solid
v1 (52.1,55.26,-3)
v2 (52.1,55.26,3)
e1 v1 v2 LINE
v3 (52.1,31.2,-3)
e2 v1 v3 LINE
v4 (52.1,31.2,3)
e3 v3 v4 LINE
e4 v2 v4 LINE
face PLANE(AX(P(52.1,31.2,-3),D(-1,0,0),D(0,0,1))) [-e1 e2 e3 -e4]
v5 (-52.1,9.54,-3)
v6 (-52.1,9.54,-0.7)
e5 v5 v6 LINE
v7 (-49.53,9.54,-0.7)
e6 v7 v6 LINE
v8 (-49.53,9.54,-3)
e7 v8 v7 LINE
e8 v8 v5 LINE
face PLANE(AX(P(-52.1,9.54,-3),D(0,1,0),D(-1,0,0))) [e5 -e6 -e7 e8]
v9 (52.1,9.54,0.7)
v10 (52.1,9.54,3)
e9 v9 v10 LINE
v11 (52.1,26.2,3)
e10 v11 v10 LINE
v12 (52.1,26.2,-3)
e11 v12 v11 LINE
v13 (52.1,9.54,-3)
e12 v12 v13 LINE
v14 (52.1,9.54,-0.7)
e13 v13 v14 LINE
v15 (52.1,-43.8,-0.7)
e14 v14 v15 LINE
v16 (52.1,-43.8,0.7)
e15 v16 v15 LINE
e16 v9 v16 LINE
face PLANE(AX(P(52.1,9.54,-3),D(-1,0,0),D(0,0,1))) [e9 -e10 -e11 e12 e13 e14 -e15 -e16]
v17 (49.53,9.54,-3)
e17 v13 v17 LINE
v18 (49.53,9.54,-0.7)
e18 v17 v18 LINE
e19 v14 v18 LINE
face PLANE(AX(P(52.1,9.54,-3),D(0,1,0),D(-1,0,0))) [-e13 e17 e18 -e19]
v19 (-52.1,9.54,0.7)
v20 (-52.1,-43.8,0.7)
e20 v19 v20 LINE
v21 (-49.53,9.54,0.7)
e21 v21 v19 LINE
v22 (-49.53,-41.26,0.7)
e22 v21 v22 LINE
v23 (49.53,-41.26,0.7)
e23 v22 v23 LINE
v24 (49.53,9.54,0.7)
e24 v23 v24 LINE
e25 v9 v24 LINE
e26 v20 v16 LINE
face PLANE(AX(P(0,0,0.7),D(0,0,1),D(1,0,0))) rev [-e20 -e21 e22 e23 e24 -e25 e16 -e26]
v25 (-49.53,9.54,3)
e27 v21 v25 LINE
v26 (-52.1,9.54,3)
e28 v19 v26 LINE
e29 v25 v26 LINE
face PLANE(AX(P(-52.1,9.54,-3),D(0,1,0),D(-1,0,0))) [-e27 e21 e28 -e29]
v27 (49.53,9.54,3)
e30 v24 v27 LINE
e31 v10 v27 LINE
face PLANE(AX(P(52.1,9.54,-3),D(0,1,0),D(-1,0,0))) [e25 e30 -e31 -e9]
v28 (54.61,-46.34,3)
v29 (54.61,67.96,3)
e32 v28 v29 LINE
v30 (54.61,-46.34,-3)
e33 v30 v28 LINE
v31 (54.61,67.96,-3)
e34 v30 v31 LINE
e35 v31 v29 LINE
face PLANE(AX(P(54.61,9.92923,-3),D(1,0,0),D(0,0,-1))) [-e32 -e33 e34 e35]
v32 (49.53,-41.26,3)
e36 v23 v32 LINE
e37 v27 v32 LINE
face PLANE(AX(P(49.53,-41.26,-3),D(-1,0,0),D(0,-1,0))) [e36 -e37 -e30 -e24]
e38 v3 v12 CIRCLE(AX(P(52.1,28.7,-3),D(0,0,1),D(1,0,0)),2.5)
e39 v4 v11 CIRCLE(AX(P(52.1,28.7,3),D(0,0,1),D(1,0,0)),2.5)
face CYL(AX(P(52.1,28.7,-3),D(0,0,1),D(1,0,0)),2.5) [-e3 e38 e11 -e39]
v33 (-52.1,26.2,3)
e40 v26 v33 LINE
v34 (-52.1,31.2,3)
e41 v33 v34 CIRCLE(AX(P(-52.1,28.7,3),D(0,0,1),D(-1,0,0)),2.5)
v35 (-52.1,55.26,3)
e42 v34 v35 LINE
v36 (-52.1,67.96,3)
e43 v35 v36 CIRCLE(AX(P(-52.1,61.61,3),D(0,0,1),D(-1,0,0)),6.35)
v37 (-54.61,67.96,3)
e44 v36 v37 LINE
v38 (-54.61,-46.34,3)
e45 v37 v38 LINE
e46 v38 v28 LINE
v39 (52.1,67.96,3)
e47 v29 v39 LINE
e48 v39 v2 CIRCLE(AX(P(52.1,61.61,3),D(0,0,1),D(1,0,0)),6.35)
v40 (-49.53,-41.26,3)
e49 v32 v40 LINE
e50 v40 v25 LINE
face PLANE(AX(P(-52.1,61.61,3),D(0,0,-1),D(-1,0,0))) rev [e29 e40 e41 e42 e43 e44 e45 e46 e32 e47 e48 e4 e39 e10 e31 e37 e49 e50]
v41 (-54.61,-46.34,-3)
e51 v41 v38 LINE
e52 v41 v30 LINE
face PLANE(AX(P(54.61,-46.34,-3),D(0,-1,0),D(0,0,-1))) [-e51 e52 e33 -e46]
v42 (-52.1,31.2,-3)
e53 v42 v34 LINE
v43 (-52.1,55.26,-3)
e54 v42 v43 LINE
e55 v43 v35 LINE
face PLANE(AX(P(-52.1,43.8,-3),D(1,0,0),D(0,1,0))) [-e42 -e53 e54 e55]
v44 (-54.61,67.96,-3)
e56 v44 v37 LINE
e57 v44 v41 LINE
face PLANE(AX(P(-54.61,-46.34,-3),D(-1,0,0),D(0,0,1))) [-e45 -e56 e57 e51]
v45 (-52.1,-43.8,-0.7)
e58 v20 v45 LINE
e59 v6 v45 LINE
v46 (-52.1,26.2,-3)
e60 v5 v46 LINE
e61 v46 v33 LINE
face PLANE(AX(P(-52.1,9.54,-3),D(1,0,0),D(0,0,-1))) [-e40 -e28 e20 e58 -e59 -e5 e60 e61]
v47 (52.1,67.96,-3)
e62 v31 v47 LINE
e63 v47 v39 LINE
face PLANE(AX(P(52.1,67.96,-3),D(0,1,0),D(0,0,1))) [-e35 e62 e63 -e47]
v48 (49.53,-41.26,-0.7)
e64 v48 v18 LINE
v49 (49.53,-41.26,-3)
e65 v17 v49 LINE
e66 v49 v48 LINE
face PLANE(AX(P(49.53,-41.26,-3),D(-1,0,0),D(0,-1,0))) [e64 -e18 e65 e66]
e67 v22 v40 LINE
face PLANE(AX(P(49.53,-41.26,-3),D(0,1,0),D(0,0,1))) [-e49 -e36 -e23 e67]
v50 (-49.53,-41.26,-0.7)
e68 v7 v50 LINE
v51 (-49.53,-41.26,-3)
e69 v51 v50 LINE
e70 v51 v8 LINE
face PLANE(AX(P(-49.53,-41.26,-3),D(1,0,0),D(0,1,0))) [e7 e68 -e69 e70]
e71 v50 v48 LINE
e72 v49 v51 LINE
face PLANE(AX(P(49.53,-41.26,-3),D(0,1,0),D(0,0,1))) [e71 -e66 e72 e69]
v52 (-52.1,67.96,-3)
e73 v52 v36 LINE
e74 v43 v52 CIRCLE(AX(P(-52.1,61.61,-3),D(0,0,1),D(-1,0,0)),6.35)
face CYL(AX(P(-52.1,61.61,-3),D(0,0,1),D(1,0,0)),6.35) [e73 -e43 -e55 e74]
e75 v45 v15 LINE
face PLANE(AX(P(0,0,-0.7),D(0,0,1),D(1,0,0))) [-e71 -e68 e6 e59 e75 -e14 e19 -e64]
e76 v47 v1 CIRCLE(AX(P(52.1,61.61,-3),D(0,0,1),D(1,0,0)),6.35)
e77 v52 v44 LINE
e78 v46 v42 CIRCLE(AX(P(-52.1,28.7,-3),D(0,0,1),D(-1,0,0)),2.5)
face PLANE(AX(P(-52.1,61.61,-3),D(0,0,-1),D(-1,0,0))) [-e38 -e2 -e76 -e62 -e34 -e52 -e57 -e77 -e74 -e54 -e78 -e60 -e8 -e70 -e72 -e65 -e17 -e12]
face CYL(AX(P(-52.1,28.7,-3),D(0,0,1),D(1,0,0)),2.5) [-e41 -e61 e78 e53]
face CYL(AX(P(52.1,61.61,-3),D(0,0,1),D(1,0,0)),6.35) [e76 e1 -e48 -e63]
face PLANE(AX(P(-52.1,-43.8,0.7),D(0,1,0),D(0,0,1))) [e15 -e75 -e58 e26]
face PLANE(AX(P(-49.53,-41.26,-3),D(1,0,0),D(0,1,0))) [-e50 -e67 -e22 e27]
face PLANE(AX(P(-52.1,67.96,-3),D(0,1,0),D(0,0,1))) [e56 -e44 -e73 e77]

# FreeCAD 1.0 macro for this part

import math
import FreeCAD as App
import Part
import Sketcher
Q = App.Units.Quantity

doc = App.newDocument("Part")
body = doc.addObject("PartDesign::Body", "Body")

sketch1 = doc.addObject("Sketcher::SketchObject", "Sketch")
body.addObject(sketch1)
sketch1.AttachmentSupport = (doc.XY_Plane, [""])
sketch1.MapMode = "FlatFace"
sketch1.addGeometry([
    Part.LineSegment(App.Vector(-52.1, 67.96, 0), App.Vector(-54.61, 67.96, 0)),
    Part.LineSegment(App.Vector(-54.61, 67.96, 0), App.Vector(-54.61, -46.34, 0)),
    Part.LineSegment(App.Vector(-54.61, -46.34, 0), App.Vector(54.61, -46.34, 0)),
    Part.LineSegment(App.Vector(54.61, -46.34, 0), App.Vector(54.61, 67.96, 0)),
    Part.LineSegment(App.Vector(54.61, 67.96, 0), App.Vector(52.1, 67.96, 0)),
    Part.ArcOfCircle(Part.Circle(App.Vector(52.1, 61.61, 0), App.Vector(0, 0, 1), 6.35), math.radians(90), math.radians(270)),
    Part.LineSegment(App.Vector(52.1, 55.26, 0), App.Vector(52.1, 31.2, 0)),
    Part.ArcOfCircle(Part.Circle(App.Vector(52.1, 28.7, 0), App.Vector(0, 0, 1), 2.5), math.radians(90), math.radians(270)),
    Part.LineSegment(App.Vector(52.1, 26.2, 0), App.Vector(52.1, 9.54, 0)),
    Part.LineSegment(App.Vector(52.1, 9.54, 0), App.Vector(49.53, 9.54, 0)),
    Part.LineSegment(App.Vector(49.53, 9.54, 0), App.Vector(49.53, -41.26, 0)),
    Part.LineSegment(App.Vector(49.53, -41.26, 0), App.Vector(-49.53, -41.26, 0)),
    Part.LineSegment(App.Vector(-49.53, -41.26, 0), App.Vector(-49.53, 9.54, 0)),
    Part.LineSegment(App.Vector(-49.53, 9.54, 0), App.Vector(-52.1, 9.54, 0)),
    Part.LineSegment(App.Vector(-52.1, 9.54, 0), App.Vector(-52.1, 26.2, 0)),
    Part.ArcOfCircle(Part.Circle(App.Vector(-52.1, 28.7, 0), App.Vector(0, 0, 1), 2.5), math.radians(-90), math.radians(90)),
    Part.LineSegment(App.Vector(-52.1, 31.2, 0), App.Vector(-52.1, 55.26, 0)),
    Part.ArcOfCircle(Part.Circle(App.Vector(-52.1, 61.61, 0), App.Vector(0, 0, 1), 6.35), math.radians(-90), math.radians(90)),
], False)
sketch1.addConstraint([
    Sketcher.Constraint("Coincident", 0, 2, 1, 1),
    Sketcher.Constraint("Coincident", 1, 2, 2, 1),
    Sketcher.Constraint("Coincident", 2, 2, 3, 1),
    Sketcher.Constraint("Coincident", 3, 2, 4, 1),
    Sketcher.Constraint("Tangent", 4, 2, 5, 1),
    Sketcher.Constraint("Coincident", 5, 2, 6, 1),
    Sketcher.Constraint("Coincident", 6, 2, 7, 1),
    Sketcher.Constraint("Coincident", 7, 2, 8, 1),
    Sketcher.Constraint("Coincident", 8, 2, 9, 1),
    Sketcher.Constraint("Coincident", 9, 2, 10, 1),
    Sketcher.Constraint("Coincident", 10, 2, 11, 1),
    Sketcher.Constraint("Coincident", 11, 2, 12, 1),
    Sketcher.Constraint("Coincident", 12, 2, 13, 1),
    Sketcher.Constraint("Coincident", 13, 2, 14, 1),
    Sketcher.Constraint("Coincident", 14, 2, 15, 1),
    Sketcher.Constraint("Coincident", 15, 2, 16, 1),
    Sketcher.Constraint("Coincident", 16, 2, 17, 1),
    Sketcher.Constraint("Tangent", 17, 2, 0, 1),
    Sketcher.Constraint("Horizontal", 0),
    Sketcher.Constraint("Vertical", 1),
    Sketcher.Constraint("Horizontal", 2),
    Sketcher.Constraint("Vertical", 3),
    Sketcher.Constraint("Horizontal", 4),
    Sketcher.Constraint("Vertical", 6),
    Sketcher.Constraint("Vertical", 8),
    Sketcher.Constraint("Horizontal", 9),
    Sketcher.Constraint("Vertical", 10),
    Sketcher.Constraint("Horizontal", 11),
    Sketcher.Constraint("Vertical", 12),
    Sketcher.Constraint("Horizontal", 13),
    Sketcher.Constraint("Vertical", 14),
    Sketcher.Constraint("Vertical", 16),
    Sketcher.Constraint("Equal", 7, 15),
    Sketcher.Constraint("Equal", 5, 17),
    Sketcher.Constraint("Symmetric", 7, 3, 15, 3, -2),
    Sketcher.Constraint("Symmetric", 5, 3, 17, 3, -2),
    Sketcher.Constraint("Symmetric", 9, 2, 12, 2, -2),
    Sketcher.Constraint("Vertical", 5, 3, 7, 3),
    Sketcher.Constraint("Vertical", 4, 2, 5, 2),
    Sketcher.Constraint("Vertical", 6, 2, 7, 2),
    Sketcher.Constraint("Vertical", 17, 3, 13, 2),
    Sketcher.Constraint("Vertical", 14, 2, 15, 2),
    Sketcher.Constraint("Equal", 0, 4),
    Sketcher.Constraint("DistanceY", 10, 2, 10, 1, Q("2 in")),
    Sketcher.Constraint("Radius", 5, Q("0.25 in")),
    Sketcher.Constraint("DistanceX", 2, 1, 2, 2, Q("4.3 in")),
    Sketcher.Constraint("DistanceX", 11, 2, 11, 1, Q("3.9 in")),
    Sketcher.Constraint("DistanceY", 1, 2, 1, 1, Q("4.5 in")),
    Sketcher.Constraint("DistanceY", 8, 2, 5, 2, Q("1.8 in")),
    Sketcher.Constraint("Radius", 7, 2.5),
    Sketcher.Constraint("DistanceX", 0, 2, 0, 1, 2.51),
    Sketcher.Constraint("DistanceY", 6, 2, 6, 1, 24.06),
    Sketcher.Constraint("DistanceY", -1, 1, 5, 3, 61.61),
])
pad1 = doc.addObject("PartDesign::Pad", "Pad")
body.addObject(pad1)
pad1.Profile = sketch1
pad1.Type = "TwoLengths"
pad1.Length = 3
pad1.Length2 = 3

sketch2 = doc.addObject("Sketcher::SketchObject", "Sketch001")
body.addObject(sketch2)
sketch2.AttachmentSupport = (doc.XY_Plane, [""])
sketch2.MapMode = "FlatFace"
sketch2.addGeometry([
    Part.LineSegment(App.Vector(-52.1, 9.54, 0), App.Vector(-52.1, -43.8, 0)),
    Part.LineSegment(App.Vector(-52.1, -43.8, 0), App.Vector(52.1, -43.8, 0)),
    Part.LineSegment(App.Vector(52.1, -43.8, 0), App.Vector(52.1, 9.54, 0)),
    Part.LineSegment(App.Vector(52.1, 9.54, 0), App.Vector(-52.1, 9.54, 0)),
], False)
sketch2.addConstraint([
    Sketcher.Constraint("Coincident", 0, 2, 1, 1),
    Sketcher.Constraint("Coincident", 1, 2, 2, 1),
    Sketcher.Constraint("Coincident", 2, 2, 3, 1),
    Sketcher.Constraint("Coincident", 3, 2, 0, 1),
    Sketcher.Constraint("Vertical", 0),
    Sketcher.Constraint("Horizontal", 1),
    Sketcher.Constraint("Vertical", 2),
    Sketcher.Constraint("Horizontal", 3),
    Sketcher.Constraint("DistanceY", 0, 2, 0, 1, Q("2.1 in")),
    Sketcher.Constraint("DistanceX", 1, 1, 1, 2, 104.2),
    Sketcher.Constraint("DistanceX", 0, 2, -1, 1, 52.1),
    Sketcher.Constraint("DistanceY", 0, 2, -1, 1, 43.8),
])
pocket1 = doc.addObject("PartDesign::Pocket", "Pocket")
body.addObject(pocket1)
pocket1.Profile = sketch2
pocket1.Type = "TwoLengths"
pocket1.Length = 0.7
pocket1.Length2 = 0.7
pocket1.Reversed = True

doc.recompute()
